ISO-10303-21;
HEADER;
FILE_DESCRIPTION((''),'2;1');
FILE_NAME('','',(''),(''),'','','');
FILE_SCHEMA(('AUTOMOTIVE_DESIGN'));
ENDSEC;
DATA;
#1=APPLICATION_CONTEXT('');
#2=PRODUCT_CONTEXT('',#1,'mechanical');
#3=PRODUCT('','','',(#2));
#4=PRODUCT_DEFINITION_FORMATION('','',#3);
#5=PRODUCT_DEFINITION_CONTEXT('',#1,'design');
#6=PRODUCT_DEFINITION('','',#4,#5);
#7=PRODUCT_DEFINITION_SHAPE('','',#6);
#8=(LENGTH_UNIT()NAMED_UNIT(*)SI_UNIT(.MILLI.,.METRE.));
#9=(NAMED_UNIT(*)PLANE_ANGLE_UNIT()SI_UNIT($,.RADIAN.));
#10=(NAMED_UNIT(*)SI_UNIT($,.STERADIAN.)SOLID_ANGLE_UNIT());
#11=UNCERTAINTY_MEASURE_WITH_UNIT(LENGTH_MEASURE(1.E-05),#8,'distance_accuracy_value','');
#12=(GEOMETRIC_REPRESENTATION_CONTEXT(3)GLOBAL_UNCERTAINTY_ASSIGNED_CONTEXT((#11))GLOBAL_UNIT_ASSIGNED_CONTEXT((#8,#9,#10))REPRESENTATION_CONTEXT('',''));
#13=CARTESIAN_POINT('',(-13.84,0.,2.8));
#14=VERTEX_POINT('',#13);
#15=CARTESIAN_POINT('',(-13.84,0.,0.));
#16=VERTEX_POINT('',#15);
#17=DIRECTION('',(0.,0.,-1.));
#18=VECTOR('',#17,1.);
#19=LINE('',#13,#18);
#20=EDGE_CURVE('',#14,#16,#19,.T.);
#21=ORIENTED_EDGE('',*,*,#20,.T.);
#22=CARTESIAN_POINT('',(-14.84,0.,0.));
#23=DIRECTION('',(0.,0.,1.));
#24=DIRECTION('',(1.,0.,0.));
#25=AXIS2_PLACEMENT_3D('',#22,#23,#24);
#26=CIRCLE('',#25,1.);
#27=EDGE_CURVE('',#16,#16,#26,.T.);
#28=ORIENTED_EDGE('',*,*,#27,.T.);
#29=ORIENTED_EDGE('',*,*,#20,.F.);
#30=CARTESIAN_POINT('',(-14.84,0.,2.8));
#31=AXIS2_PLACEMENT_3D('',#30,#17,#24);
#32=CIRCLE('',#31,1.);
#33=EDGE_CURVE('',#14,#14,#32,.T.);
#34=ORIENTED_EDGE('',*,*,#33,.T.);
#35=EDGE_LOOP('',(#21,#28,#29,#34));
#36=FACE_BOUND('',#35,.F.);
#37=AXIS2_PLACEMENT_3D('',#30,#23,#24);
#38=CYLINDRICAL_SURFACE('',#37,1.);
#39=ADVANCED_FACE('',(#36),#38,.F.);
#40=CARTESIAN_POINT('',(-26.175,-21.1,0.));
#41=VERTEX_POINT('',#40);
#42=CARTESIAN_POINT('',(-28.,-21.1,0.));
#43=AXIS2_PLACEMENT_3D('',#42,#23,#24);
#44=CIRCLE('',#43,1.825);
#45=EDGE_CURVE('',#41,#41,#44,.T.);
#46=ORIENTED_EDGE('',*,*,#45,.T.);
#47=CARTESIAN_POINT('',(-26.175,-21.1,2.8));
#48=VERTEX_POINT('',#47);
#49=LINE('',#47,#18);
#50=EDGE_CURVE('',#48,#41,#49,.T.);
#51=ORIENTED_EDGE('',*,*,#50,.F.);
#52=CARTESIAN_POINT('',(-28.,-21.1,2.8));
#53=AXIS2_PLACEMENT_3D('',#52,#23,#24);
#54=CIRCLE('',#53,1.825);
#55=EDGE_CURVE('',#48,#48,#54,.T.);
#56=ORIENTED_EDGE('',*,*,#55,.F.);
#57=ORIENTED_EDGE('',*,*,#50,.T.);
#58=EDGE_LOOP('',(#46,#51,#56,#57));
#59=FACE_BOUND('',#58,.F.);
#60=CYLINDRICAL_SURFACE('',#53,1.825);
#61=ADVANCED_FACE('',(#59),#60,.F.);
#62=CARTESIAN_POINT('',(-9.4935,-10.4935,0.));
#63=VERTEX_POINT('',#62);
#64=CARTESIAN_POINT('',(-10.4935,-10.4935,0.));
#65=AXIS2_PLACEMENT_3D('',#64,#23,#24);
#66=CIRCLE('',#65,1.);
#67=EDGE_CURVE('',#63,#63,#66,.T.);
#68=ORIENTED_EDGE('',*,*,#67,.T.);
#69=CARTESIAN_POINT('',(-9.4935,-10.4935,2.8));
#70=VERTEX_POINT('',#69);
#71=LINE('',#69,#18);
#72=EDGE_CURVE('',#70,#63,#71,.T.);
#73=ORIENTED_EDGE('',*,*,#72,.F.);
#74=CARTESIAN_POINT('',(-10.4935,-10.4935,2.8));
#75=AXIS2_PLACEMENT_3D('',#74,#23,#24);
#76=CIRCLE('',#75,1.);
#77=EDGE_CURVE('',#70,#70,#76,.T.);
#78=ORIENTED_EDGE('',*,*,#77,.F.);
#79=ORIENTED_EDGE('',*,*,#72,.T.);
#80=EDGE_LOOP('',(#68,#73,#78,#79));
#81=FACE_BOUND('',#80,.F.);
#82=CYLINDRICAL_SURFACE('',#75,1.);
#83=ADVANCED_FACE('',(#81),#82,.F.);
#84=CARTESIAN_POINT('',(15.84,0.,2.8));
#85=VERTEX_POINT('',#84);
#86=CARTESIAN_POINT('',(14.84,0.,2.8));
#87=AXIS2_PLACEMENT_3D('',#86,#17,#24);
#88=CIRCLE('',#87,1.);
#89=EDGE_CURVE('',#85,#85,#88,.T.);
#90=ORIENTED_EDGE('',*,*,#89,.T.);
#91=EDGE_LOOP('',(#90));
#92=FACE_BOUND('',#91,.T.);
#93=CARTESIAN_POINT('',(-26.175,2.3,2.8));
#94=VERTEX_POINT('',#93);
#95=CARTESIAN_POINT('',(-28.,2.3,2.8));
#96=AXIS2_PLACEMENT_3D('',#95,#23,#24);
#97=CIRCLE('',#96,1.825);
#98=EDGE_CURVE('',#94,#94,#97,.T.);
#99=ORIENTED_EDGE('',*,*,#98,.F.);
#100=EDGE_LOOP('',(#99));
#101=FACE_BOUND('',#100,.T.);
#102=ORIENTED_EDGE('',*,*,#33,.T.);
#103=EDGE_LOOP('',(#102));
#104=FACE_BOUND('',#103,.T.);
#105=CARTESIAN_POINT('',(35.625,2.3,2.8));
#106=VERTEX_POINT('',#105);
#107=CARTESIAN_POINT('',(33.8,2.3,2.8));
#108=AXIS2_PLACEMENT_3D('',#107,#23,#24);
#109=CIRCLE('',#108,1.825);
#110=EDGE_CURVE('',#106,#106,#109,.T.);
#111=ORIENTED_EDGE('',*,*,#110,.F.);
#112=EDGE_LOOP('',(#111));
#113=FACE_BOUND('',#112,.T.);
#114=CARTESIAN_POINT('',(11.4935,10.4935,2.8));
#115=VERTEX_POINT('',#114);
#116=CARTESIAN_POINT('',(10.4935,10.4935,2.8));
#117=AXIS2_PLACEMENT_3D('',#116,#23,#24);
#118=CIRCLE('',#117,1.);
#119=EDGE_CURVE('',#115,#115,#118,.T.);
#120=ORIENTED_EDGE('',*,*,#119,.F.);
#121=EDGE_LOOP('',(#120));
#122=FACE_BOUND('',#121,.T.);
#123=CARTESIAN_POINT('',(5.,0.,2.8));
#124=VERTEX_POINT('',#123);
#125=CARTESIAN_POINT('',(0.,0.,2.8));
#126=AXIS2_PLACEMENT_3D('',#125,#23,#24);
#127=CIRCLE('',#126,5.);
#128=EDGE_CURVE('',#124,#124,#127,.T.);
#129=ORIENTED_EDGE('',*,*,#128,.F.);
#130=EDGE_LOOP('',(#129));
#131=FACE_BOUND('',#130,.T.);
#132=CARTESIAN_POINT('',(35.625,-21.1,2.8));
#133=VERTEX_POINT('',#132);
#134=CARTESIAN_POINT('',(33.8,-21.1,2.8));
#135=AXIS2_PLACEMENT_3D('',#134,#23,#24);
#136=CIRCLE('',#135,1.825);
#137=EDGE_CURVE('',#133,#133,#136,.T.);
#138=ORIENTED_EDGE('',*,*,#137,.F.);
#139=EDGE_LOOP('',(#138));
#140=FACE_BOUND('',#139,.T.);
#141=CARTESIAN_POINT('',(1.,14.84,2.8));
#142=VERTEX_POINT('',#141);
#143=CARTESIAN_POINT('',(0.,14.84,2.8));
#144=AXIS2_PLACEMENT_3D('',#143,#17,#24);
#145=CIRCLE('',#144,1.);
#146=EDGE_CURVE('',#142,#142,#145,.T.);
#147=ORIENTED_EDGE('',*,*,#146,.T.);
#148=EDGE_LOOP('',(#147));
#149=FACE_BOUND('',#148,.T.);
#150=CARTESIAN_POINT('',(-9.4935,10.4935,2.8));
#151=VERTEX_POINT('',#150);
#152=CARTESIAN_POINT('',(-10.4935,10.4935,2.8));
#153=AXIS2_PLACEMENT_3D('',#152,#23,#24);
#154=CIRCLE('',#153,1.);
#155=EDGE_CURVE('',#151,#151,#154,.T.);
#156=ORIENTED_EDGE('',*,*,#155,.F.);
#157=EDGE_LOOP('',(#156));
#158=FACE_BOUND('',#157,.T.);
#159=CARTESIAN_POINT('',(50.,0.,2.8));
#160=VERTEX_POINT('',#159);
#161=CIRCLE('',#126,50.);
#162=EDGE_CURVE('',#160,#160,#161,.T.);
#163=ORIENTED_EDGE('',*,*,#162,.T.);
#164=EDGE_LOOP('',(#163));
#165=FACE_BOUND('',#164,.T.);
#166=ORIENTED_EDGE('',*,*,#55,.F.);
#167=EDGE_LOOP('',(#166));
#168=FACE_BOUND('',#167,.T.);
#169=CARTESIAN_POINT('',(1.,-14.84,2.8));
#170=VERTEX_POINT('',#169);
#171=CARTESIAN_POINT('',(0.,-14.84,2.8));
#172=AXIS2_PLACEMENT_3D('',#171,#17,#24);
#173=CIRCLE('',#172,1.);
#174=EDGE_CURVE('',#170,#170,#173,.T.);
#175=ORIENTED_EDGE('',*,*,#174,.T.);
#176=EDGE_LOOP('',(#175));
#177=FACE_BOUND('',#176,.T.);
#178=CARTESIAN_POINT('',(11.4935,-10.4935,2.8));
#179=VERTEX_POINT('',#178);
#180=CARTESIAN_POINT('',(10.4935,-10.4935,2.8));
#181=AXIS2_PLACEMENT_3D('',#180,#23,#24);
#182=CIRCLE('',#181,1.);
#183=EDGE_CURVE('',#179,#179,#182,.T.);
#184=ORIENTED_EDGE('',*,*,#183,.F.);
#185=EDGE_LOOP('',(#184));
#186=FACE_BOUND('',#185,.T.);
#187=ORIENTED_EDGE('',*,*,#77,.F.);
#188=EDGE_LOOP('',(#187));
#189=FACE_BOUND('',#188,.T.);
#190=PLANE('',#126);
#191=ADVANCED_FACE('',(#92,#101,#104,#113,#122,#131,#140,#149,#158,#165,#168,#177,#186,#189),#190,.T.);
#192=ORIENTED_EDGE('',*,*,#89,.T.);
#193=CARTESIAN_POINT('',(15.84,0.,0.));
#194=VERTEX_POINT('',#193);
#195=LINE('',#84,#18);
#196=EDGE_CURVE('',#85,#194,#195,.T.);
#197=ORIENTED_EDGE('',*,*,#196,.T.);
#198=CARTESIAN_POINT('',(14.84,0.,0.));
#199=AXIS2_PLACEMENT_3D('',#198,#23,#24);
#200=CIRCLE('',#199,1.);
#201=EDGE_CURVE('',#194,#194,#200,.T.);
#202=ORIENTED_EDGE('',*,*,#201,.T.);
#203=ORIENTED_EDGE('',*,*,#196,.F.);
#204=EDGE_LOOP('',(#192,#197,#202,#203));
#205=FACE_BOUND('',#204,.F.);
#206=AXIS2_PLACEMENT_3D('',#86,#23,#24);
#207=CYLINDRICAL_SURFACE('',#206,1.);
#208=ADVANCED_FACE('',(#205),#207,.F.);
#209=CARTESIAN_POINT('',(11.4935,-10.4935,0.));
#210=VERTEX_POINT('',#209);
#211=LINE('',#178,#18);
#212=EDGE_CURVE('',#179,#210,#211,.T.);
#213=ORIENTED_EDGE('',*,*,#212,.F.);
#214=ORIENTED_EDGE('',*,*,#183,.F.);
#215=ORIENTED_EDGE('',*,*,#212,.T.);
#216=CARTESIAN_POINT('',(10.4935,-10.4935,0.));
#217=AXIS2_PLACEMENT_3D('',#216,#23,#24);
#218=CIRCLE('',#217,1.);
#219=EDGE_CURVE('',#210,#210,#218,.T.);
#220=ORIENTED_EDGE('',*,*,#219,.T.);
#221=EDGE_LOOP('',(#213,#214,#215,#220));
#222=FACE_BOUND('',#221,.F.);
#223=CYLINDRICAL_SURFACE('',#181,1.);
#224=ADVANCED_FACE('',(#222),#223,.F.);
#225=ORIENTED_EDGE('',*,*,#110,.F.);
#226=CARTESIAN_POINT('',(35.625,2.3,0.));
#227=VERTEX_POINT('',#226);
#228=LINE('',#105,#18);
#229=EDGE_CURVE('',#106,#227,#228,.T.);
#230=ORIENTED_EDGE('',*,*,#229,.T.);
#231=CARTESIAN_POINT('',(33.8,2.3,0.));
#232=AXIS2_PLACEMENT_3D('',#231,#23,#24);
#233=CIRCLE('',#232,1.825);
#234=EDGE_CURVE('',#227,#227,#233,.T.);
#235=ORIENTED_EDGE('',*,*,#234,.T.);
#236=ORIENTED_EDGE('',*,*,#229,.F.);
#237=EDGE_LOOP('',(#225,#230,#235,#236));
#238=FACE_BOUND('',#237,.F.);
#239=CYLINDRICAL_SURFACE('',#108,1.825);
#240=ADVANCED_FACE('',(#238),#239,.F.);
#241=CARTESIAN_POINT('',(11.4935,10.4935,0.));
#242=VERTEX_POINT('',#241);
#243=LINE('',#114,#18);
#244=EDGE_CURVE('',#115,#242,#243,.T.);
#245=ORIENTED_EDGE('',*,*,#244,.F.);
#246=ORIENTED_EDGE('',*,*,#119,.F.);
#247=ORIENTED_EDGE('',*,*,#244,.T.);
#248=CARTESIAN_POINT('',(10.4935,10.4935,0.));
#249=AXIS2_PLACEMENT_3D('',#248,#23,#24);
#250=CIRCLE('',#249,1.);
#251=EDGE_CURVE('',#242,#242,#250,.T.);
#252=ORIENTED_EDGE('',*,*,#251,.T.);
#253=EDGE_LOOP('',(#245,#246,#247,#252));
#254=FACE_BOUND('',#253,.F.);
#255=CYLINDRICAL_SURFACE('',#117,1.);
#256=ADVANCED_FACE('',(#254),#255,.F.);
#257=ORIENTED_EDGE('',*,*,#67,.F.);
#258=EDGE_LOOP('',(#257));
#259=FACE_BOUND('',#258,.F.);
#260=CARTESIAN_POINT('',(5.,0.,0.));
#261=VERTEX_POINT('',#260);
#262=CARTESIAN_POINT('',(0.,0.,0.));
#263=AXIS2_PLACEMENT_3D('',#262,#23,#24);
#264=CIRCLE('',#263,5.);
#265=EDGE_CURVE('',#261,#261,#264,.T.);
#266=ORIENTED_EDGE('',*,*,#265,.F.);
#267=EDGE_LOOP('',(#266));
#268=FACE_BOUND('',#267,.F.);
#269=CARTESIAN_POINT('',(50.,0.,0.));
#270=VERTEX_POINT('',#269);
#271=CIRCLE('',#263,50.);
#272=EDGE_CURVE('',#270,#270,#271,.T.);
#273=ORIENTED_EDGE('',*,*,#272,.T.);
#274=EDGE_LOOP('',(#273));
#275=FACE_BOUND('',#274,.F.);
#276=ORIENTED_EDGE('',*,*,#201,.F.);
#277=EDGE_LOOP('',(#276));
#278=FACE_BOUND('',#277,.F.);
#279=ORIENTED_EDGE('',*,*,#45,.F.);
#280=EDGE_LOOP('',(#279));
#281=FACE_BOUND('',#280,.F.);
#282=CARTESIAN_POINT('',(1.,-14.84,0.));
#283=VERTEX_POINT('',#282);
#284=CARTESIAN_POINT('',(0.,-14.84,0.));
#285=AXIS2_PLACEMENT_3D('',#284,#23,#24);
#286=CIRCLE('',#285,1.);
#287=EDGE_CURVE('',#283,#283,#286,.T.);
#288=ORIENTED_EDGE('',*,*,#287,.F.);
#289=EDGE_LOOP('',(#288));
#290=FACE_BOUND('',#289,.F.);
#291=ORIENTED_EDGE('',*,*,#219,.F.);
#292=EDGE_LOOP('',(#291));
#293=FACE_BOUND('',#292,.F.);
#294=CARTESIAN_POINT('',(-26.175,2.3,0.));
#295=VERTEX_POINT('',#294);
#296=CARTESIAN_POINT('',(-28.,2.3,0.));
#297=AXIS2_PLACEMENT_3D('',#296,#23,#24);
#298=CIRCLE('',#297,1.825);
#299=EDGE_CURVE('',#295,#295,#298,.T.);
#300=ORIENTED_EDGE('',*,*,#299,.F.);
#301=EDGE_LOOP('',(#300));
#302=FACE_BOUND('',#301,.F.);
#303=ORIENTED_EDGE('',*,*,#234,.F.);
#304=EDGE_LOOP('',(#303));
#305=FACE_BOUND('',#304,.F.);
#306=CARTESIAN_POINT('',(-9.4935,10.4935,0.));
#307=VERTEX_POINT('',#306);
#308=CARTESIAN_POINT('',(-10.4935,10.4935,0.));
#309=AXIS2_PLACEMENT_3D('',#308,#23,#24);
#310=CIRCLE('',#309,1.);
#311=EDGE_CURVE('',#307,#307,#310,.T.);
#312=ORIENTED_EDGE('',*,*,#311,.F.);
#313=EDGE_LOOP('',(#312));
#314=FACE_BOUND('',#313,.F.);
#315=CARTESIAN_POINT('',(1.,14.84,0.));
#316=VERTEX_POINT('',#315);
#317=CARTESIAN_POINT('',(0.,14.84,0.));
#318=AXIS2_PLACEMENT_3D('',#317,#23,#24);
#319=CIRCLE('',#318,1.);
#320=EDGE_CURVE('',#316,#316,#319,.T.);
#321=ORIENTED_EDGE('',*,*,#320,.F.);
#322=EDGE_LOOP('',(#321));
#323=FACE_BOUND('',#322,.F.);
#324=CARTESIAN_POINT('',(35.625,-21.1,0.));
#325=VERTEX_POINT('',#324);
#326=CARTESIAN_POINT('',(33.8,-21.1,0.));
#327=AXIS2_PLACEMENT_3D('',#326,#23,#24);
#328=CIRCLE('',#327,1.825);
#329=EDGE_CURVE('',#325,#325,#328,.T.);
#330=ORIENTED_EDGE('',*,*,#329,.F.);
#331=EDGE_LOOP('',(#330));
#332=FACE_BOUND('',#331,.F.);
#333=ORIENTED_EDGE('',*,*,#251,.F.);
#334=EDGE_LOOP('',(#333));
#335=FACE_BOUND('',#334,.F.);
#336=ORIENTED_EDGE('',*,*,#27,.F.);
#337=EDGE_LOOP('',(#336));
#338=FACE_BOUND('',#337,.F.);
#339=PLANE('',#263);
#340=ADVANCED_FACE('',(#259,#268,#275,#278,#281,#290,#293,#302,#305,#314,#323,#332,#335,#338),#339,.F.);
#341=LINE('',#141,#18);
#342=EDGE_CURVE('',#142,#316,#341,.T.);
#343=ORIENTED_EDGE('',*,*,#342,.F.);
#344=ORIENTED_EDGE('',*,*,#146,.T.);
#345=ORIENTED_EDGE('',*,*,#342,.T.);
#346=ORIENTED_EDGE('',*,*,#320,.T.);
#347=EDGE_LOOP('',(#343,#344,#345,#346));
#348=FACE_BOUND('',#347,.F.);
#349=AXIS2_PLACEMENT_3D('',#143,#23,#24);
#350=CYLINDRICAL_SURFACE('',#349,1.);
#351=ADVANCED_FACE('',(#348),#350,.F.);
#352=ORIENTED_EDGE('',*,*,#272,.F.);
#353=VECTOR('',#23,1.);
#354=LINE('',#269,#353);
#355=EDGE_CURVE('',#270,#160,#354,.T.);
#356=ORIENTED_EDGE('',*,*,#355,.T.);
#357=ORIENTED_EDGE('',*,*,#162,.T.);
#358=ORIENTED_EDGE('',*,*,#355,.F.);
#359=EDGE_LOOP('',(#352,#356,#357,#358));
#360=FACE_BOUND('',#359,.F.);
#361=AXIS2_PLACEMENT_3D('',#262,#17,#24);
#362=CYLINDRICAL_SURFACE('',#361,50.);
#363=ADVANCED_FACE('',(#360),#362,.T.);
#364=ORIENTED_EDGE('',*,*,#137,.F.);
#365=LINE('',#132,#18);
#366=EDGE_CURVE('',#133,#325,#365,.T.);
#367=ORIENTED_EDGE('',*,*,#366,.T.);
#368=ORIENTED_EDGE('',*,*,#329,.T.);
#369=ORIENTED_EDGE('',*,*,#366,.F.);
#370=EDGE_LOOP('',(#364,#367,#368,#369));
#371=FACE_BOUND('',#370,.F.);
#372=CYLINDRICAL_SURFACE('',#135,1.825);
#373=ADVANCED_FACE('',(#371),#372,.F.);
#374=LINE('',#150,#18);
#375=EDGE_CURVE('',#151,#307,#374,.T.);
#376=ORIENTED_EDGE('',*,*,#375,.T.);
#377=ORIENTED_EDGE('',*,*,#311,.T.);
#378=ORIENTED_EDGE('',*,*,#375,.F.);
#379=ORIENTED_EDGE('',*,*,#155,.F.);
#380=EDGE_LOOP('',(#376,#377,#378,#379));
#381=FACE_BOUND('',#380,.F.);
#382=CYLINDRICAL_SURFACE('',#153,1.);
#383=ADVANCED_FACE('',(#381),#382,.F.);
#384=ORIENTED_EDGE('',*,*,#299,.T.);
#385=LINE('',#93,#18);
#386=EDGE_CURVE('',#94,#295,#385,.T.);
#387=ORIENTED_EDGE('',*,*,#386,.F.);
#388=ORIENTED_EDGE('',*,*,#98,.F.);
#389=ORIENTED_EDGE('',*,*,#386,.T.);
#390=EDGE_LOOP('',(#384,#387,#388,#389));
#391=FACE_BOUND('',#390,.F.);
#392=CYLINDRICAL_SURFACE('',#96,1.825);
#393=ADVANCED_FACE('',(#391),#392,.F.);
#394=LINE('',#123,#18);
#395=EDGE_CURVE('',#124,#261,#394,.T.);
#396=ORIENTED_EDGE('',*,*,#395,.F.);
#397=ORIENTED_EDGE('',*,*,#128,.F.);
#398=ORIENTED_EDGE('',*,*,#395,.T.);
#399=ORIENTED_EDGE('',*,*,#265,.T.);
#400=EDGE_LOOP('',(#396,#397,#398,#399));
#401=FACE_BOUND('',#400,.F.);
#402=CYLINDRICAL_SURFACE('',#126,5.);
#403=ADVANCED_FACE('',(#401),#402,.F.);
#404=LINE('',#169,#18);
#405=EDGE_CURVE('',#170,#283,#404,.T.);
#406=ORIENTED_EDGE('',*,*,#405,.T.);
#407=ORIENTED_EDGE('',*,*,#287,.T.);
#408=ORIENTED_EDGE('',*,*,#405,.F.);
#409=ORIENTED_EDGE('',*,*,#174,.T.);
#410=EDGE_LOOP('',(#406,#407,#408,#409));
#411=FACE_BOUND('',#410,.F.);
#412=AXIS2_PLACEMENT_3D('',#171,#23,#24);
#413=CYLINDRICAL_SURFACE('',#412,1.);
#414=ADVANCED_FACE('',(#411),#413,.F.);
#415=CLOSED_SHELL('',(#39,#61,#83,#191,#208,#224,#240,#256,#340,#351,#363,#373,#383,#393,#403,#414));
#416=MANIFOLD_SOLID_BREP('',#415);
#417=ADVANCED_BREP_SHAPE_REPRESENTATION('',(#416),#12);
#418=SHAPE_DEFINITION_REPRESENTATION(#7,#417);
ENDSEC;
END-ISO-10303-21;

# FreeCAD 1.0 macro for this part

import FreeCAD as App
import Part
import Sketcher

doc = App.newDocument("Part")
body = doc.addObject("PartDesign::Body", "Body")

sketch1 = doc.addObject("Sketcher::SketchObject", "Sketch")
body.addObject(sketch1)
sketch1.AttachmentSupport = (doc.XY_Plane, [""])
sketch1.MapMode = "FlatFace"
sketch1.addGeometry(Part.Circle(App.Vector(0, 0, 0), App.Vector(0, 0, 1), 50), False)
sketch1.addConstraint(Sketcher.Constraint("Coincident", 0, 3, -1, 1))
sketch1.addConstraint(Sketcher.Constraint("Diameter", 0, 100.0))
pad1 = doc.addObject("PartDesign::Pad", "Pad")
body.addObject(pad1)
pad1.Profile = sketch1
pad1.Length = 2.8

sketch2 = doc.addObject("Sketcher::SketchObject", "Sketch001")
body.addObject(sketch2)
sketch2.AttachmentSupport = (doc.XY_Plane, [""])
sketch2.MapMode = "FlatFace"
sketch2.AttachmentOffset = App.Placement(App.Vector(0, 0, 2.8), App.Rotation())
sketch2.addGeometry(Part.Circle(App.Vector(0, 0, 0), App.Vector(0, 0, 1), 5), False)
sketch2.addConstraint(Sketcher.Constraint("Coincident", 0, 3, -1, 1))
sketch2.addConstraint(Sketcher.Constraint("Diameter", 0, 10.0))
pocket1 = doc.addObject("PartDesign::Pocket", "Pocket")
body.addObject(pocket1)
pocket1.Profile = sketch2
pocket1.Type = "ThroughAll"

sketch3 = doc.addObject("Sketcher::SketchObject", "Sketch002")
body.addObject(sketch3)
sketch3.AttachmentSupport = (doc.XY_Plane, [""])
sketch3.MapMode = "FlatFace"
sketch3.AttachmentOffset = App.Placement(App.Vector(0, 0, 2.8), App.Rotation())
sketch3.addGeometry(Part.Circle(App.Vector(0, -14.8, 0), App.Vector(0, 0, 1), 1), False)
sketch3.addGeometry(Part.Circle(App.Vector(-14.8, 0, 0), App.Vector(0, 0, 1), 1), False)
sketch3.addGeometry(Part.Circle(App.Vector(0, 14.8, 0), App.Vector(0, 0, 1), 1), False)
sketch3.addGeometry(Part.Circle(App.Vector(14.8, 0, 0), App.Vector(0, 0, 1), 1), False)
sketch3.addGeometry(Part.Circle(App.Vector(-10.5, 10.5, 0), App.Vector(0, 0, 1), 1), False)
sketch3.addGeometry(Part.Circle(App.Vector(-10.5, -10.5, 0), App.Vector(0, 0, 1), 1), False)
sketch3.addGeometry(Part.Circle(App.Vector(10.5, -10.5, 0), App.Vector(0, 0, 1), 1), False)
sketch3.addGeometry(Part.Circle(App.Vector(10.5, 10.5, 0), App.Vector(0, 0, 1), 1), False)
sketch3.addGeometry(Part.Circle(App.Vector(-28, 2.3, 0), App.Vector(0, 0, 1), 1.8), False)
sketch3.addGeometry(Part.Circle(App.Vector(-28, -21.1, 0), App.Vector(0, 0, 1), 1.8), False)
sketch3.addGeometry(Part.Circle(App.Vector(33.8, -21.1, 0), App.Vector(0, 0, 1), 1.8), False)
sketch3.addGeometry(Part.Circle(App.Vector(33.8, 2.3, 0), App.Vector(0, 0, 1), 1.8), False)
sketch3.addConstraint(Sketcher.Constraint("Equal", 0, 1))
sketch3.addConstraint(Sketcher.Constraint("Equal", 1, 2))
sketch3.addConstraint(Sketcher.Constraint("Equal", 2, 3))
sketch3.addConstraint(Sketcher.Constraint("Equal", 3, 4))
sketch3.addConstraint(Sketcher.Constraint("Equal", 4, 5))
sketch3.addConstraint(Sketcher.Constraint("Equal", 5, 6))
sketch3.addConstraint(Sketcher.Constraint("Equal", 6, 7))
sketch3.addConstraint(Sketcher.Constraint("Equal", 8, 9))
sketch3.addConstraint(Sketcher.Constraint("Equal", 9, 10))
sketch3.addConstraint(Sketcher.Constraint("Equal", 10, 11))
sketch3.addConstraint(Sketcher.Constraint("Symmetric", 0, 3, 2, 3, -1, 1))
sketch3.addConstraint(Sketcher.Constraint("Symmetric", 1, 3, 3, 3, -1, 1))
sketch3.addConstraint(Sketcher.Constraint("Symmetric", 4, 3, 6, 3, -1, 1))
sketch3.addConstraint(Sketcher.Constraint("Symmetric", 5, 3, 7, 3, -1, 1))
sketch3.addConstraint(Sketcher.Constraint("Symmetric", 5, 3, 6, 3, -2))
sketch3.addConstraint(Sketcher.Constraint("PointOnObject", 0, 3, -2))
sketch3.addConstraint(Sketcher.Constraint("PointOnObject", 1, 3, -1))
sketch3.addConstraint(Sketcher.Constraint("Horizontal", 9, 3, 10, 3))
sketch3.addConstraint(Sketcher.Constraint("Horizontal", 8, 3, 11, 3))
sketch3.addConstraint(Sketcher.Constraint("Vertical", 8, 3, 9, 3))
sketch3.addConstraint(Sketcher.Constraint("Vertical", 10, 3, 11, 3))
sketch3.addConstraint(Sketcher.Constraint("Diameter", 0, 2.0))
sketch3.addConstraint(Sketcher.Constraint("Diameter", 8, 3.65))
sketch3.addConstraint(Sketcher.Constraint("DistanceY", 0, 3, -1, 1, 14.84))
sketch3.addConstraint(Sketcher.Constraint("DistanceX", 1, 3, -1, 1, 14.84))
sketch3.addConstraint(Sketcher.Constraint("DistanceX", 8, 3, -1, 1, 28.0))
sketch3.addConstraint(Sketcher.Constraint("DistanceY", -1, 1, 8, 3, 2.3))
sketch3.addConstraint(Sketcher.Constraint("DistanceY", 9, 3, -1, 1, 21.1))
sketch3.addConstraint(Sketcher.Constraint("DistanceX", -1, 1, 10, 3, 33.8))
sketch3.addConstraint(Sketcher.Constraint("DistanceY", 5, 3, 4, 3, 20.987))
sketch3.addConstraint(Sketcher.Constraint("DistanceX", 5, 3, 6, 3, 20.987))
pocket2 = doc.addObject("PartDesign::Pocket", "Pocket001")
body.addObject(pocket2)
pocket2.Profile = sketch3
pocket2.Type = "ThroughAll"

doc.recompute()
